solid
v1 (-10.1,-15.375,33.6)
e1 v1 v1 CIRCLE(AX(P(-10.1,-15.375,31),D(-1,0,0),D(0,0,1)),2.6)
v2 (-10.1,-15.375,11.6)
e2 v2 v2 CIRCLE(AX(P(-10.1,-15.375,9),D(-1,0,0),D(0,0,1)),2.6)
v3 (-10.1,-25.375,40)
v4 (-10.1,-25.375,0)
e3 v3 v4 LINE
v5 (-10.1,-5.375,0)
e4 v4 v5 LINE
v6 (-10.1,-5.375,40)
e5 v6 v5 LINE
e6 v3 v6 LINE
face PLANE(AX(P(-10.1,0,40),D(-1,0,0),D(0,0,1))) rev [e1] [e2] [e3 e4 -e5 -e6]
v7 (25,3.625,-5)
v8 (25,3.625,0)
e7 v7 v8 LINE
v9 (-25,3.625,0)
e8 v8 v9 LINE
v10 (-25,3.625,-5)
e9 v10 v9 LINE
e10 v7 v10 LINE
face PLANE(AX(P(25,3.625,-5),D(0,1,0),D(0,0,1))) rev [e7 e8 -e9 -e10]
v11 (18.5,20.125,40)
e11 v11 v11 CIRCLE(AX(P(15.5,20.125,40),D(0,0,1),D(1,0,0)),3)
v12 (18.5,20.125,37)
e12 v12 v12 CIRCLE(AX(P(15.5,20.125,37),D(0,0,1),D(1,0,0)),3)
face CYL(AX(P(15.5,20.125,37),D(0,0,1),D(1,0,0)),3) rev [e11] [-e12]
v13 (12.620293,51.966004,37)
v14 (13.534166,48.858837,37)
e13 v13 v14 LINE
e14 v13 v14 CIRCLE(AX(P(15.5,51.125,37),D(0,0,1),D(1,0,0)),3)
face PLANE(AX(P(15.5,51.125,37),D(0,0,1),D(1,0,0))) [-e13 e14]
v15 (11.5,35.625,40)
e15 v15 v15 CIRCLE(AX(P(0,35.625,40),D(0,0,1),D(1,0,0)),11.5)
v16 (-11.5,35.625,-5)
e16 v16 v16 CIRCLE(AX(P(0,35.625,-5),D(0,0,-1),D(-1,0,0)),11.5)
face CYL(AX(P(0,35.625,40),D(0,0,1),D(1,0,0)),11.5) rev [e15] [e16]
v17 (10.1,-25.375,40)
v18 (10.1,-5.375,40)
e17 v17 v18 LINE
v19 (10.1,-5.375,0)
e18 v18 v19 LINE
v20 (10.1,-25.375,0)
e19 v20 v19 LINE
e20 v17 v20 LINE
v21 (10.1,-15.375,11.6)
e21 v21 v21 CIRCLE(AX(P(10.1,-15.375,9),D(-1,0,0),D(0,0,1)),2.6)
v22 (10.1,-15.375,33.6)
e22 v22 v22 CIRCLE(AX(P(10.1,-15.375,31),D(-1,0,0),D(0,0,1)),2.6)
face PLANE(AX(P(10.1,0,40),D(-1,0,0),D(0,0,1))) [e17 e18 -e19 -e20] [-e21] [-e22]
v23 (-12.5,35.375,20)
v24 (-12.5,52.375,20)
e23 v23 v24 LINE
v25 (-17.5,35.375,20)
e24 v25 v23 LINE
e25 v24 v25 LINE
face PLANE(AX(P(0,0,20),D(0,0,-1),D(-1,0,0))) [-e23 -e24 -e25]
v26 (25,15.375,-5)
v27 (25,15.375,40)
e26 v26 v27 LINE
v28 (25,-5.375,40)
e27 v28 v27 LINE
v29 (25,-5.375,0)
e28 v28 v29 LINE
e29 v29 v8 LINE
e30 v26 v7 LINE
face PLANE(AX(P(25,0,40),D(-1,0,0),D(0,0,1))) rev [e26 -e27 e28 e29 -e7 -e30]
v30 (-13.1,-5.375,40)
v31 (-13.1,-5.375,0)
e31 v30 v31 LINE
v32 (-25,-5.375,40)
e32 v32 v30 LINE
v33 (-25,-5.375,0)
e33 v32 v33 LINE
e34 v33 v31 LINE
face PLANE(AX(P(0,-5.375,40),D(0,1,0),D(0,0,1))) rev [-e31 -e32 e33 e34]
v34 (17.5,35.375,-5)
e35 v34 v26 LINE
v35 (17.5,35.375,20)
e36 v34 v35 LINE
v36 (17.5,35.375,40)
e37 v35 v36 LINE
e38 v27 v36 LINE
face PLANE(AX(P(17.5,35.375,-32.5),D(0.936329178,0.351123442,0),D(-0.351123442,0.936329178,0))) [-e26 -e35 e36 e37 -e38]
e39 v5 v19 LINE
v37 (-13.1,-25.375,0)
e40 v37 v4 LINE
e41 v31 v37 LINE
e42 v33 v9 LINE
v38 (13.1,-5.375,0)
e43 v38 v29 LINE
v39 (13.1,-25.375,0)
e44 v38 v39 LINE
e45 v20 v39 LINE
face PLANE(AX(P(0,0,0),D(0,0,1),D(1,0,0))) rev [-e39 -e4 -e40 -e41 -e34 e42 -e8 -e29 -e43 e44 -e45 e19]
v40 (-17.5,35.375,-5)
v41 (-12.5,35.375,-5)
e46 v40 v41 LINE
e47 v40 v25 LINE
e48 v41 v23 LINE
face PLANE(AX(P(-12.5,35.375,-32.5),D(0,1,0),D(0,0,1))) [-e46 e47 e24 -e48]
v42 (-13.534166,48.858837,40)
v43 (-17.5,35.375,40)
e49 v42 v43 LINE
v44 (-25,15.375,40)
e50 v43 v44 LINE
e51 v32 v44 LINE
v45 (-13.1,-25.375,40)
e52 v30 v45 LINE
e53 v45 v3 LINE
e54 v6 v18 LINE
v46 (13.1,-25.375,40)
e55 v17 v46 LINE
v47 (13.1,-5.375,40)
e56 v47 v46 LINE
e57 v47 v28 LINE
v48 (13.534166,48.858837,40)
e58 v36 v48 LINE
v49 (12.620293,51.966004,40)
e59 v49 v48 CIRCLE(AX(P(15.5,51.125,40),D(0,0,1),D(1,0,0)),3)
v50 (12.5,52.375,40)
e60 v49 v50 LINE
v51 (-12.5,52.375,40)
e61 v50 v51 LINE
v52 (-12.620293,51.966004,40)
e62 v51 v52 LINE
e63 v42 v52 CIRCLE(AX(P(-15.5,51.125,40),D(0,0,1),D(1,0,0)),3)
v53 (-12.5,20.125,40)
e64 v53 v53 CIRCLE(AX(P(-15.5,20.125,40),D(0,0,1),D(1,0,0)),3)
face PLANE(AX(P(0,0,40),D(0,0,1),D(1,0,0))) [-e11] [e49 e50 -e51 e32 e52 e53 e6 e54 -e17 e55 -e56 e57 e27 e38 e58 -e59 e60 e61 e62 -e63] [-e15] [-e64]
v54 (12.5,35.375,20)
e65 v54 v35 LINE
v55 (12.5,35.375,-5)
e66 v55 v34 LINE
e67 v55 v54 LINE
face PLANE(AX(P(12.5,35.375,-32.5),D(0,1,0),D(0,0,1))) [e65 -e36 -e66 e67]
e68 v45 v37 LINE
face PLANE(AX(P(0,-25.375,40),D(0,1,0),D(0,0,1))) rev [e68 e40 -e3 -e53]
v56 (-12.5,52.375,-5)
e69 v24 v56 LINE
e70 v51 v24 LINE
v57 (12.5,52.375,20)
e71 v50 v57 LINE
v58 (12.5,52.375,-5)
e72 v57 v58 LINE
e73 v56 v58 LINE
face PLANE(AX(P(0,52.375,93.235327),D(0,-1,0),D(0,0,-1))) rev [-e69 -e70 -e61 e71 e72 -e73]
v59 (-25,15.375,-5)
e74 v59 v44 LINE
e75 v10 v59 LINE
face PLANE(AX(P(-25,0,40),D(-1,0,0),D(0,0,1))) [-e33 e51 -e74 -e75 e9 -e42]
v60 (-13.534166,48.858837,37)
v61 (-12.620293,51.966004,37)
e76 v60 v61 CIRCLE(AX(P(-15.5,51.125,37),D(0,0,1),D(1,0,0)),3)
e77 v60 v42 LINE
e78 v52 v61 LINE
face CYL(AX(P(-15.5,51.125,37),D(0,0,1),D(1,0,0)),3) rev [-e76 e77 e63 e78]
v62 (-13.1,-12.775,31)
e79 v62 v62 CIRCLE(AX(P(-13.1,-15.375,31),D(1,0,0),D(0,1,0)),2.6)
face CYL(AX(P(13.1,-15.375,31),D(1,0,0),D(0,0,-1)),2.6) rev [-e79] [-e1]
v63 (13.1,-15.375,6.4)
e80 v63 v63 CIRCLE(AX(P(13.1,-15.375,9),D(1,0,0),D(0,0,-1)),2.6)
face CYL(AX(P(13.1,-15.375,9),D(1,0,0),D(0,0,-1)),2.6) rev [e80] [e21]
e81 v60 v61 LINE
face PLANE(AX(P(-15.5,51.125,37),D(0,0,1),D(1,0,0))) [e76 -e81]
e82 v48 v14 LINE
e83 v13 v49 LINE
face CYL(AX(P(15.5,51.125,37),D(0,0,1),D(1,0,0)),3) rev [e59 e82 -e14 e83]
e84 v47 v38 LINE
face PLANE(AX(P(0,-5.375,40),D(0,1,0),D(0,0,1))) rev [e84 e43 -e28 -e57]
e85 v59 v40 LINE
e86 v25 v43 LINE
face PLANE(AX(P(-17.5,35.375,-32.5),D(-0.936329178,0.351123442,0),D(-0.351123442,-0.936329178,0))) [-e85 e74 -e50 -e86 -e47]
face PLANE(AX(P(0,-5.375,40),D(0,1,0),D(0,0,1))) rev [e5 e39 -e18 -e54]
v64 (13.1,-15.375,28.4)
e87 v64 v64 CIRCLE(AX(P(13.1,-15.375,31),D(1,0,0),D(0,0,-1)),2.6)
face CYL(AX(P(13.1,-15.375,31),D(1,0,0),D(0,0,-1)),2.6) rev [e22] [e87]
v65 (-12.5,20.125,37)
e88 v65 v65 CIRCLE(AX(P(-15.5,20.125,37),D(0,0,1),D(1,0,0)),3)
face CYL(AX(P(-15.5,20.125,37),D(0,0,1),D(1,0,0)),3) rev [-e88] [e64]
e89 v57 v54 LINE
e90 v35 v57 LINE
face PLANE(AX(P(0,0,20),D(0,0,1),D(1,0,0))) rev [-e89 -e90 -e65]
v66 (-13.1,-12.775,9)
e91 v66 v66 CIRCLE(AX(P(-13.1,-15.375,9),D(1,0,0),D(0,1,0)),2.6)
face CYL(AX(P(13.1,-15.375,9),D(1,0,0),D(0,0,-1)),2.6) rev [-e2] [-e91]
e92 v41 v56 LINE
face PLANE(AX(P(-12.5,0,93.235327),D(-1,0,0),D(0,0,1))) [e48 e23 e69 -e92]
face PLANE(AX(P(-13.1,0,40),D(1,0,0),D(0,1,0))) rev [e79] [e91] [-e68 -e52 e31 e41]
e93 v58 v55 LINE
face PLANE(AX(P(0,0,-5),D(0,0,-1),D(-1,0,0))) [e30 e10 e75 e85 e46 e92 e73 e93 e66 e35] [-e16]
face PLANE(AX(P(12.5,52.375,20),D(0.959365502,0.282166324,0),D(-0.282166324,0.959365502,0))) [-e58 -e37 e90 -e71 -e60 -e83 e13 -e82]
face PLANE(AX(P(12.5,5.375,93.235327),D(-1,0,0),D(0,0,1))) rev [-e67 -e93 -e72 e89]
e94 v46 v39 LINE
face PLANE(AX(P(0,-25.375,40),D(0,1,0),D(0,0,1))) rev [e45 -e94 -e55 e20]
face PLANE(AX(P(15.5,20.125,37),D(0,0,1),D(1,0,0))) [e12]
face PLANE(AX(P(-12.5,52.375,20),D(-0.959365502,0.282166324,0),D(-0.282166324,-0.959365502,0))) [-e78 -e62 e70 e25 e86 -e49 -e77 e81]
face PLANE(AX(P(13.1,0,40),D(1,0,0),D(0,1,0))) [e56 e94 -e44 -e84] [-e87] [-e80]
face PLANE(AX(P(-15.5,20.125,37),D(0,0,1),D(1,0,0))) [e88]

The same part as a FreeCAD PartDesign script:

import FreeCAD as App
import Part
import Sketcher
from FreeCAD import Vector

doc = App.newDocument("Part")
body = doc.addObject("PartDesign::Body", "Body")

# Sketch on XY plane
sketch1 = body.newObject("Sketcher::SketchObject", "Sketch")
sketch1.AttachmentSupport = (doc.getObject("XY_Plane"), [""])
sketch1.MapMode = "FlatFace"
sketch1.addGeometry([
    Part.LineSegment(Vector(13.1, -25.4, 0), Vector(13.1, -5.4, 0)),  # 0
    Part.LineSegment(Vector(13.1, -5.4, 0), Vector(25, -5.4, 0)),  # 1
    Part.LineSegment(Vector(25, -5.4, 0), Vector(25, 5.4, 0)),  # 2
    Part.LineSegment(Vector(25, 5.4, 0), Vector(-25, 5.4, 0)),  # 3
    Part.LineSegment(Vector(-25, 5.4, 0), Vector(-25, -5.4, 0)),  # 4
    Part.LineSegment(Vector(-25, -5.4, 0), Vector(-13.1, -5.4, 0)),  # 5
    Part.LineSegment(Vector(-13.1, -5.4, 0), Vector(-13.1, -25.4, 0)),  # 6
    Part.LineSegment(Vector(-13.1, -25.4, 0), Vector(-10.1, -25.4, 0)),  # 7
    Part.LineSegment(Vector(-10.1, -25.4, 0), Vector(-10.1, -5.4, 0)),  # 8
    Part.LineSegment(Vector(-10.1, -5.4, 0), Vector(10.1, -5.4, 0)),  # 9
    Part.LineSegment(Vector(10.1, -5.4, 0), Vector(10.1, -25.4, 0)),  # 10
    Part.LineSegment(Vector(10.1, -25.4, 0), Vector(13.1, -25.4, 0)),  # 11
], False)
sketch1.addConstraint([
    Sketcher.Constraint("Coincident", 0, 2, 1, 1),
    Sketcher.Constraint("Coincident", 1, 2, 2, 1),
    Sketcher.Constraint("Coincident", 2, 2, 3, 1),
    Sketcher.Constraint("Coincident", 3, 2, 4, 1),
    Sketcher.Constraint("Coincident", 4, 2, 5, 1),
    Sketcher.Constraint("Coincident", 5, 2, 6, 1),
    Sketcher.Constraint("Coincident", 6, 2, 7, 1),
    Sketcher.Constraint("Coincident", 7, 2, 8, 1),
    Sketcher.Constraint("Coincident", 8, 2, 9, 1),
    Sketcher.Constraint("Coincident", 9, 2, 10, 1),
    Sketcher.Constraint("Coincident", 10, 2, 11, 1),
    Sketcher.Constraint("Coincident", 11, 2, 0, 1),
    Sketcher.Constraint("Vertical", 0),
    Sketcher.Constraint("Horizontal", 1),
    Sketcher.Constraint("Vertical", 2),
    Sketcher.Constraint("Horizontal", 3),
    Sketcher.Constraint("Vertical", 4),
    Sketcher.Constraint("Horizontal", 5),
    Sketcher.Constraint("Vertical", 6),
    Sketcher.Constraint("Horizontal", 7),
    Sketcher.Constraint("Vertical", 8),
    Sketcher.Constraint("Horizontal", 9),
    Sketcher.Constraint("Vertical", 10),
    Sketcher.Constraint("Horizontal", 11),
    Sketcher.Constraint("Symmetric", 1, 2, 3, 2, -1, 1),
    Sketcher.Constraint("Symmetric", 0, 2, 5, 2, -2),
    Sketcher.Constraint("Symmetric", 7, 2, 10, 2, -2),
    Sketcher.Constraint("Horizontal", 5, 2, 8, 2),
    Sketcher.Constraint("DistanceX", 3, 2, 3, 1, 50.0),
    Sketcher.Constraint("DistanceX", 7, 1, 7, 2, 3.0),
    Sketcher.Constraint("DistanceY", 0, 1, 0, 2, 20.0),
    Sketcher.Constraint("DistanceX", 1, 1, 1, 2, 11.9),
    Sketcher.Constraint("DistanceY", 2, 1, 2, 2, 10.75),
])
pad1 = body.newObject("PartDesign::Pad", "Pad")
pad1.Profile = sketch1
pad1.Length = 40

# Sketch on XY plane
sketch2 = body.newObject("Sketcher::SketchObject", "Sketch001")
sketch2.AttachmentSupport = (doc.getObject("XY_Plane"), [""])
sketch2.MapMode = "FlatFace"
sketch2.addGeometry([
    Part.LineSegment(Vector(12, 52, 0), Vector(12, 5, 0)),
    Part.LineSegment(Vector(12, 5, 0), Vector(-12, 5, 0)),
    Part.LineSegment(Vector(-12, 5, 0), Vector(-12, 52, 0)),
    Part.LineSegment(Vector(-12, 52, 0), Vector(12, 52, 0)),
], False)
sketch2.addConstraint([
    Sketcher.Constraint("Coincident", 0, 2, 1, 1),
    Sketcher.Constraint("Coincident", 1, 2, 2, 1),
    Sketcher.Constraint("Coincident", 2, 2, 3, 1),
    Sketcher.Constraint("Coincident", 3, 2, 0, 1),
    Sketcher.Constraint("Vertical", 0),
    Sketcher.Constraint("Horizontal", 1),
    Sketcher.Constraint("Vertical", 2),
    Sketcher.Constraint("Horizontal", 3),
    Sketcher.Constraint("DistanceX", 1, 2, 1, 1, 25.0),
    Sketcher.Constraint("DistanceY", 0, 2, 0, 1, 47.0),
    Sketcher.Constraint("DistanceX", -1, 1, 0, 2, 12.5),
    Sketcher.Constraint("DistanceY", -1, 1, 0, 2, 5.375),
])
pad2 = body.newObject("PartDesign::Pad", "Pad001")
pad2.Profile = sketch2
pad2.Length = 40

# Sketch on XY plane
sketch3 = body.newObject("Sketcher::SketchObject", "Sketch002")
sketch3.AttachmentSupport = (doc.getObject("XY_Plane"), [""])
sketch3.MapMode = "FlatFace"
sketch3.AttachmentOffset = App.Placement(Vector(0, 0, 40), App.Rotation())
sketch3.addGeometry(Part.Circle(Vector(0, 36, 0), Vector(0, 0, 1), 12), False)
sketch3.addConstraint([
    Sketcher.Constraint("PointOnObject", 0, 3, -2),
    Sketcher.Constraint("Diameter", 0, 23.0),
    Sketcher.Constraint("DistanceY", -1, 1, 0, 3, 35.625),
])
doc.recompute()
hole = body.newObject("PartDesign::Hole", "Hole")
hole.Profile = sketch3
hole.ThreadType = "None"
hole.Diameter = 23
hole.DepthType = "ThroughAll"

# Sketch on XY plane
sketch4 = body.newObject("Sketcher::SketchObject", "Sketch003")
sketch4.AttachmentSupport = (doc.getObject("XY_Plane"), [""])
sketch4.MapMode = "FlatFace"
sketch4.AttachmentOffset = App.Placement(Vector(0, 0, 40), App.Rotation())
sketch4.addGeometry([
    Part.LineSegment(Vector(18, 35, 0), Vector(12, 35, 0)),  # 0
    Part.LineSegment(Vector(12, 35, 0), Vector(12, 5, 0)),  # 1
    Part.LineSegment(Vector(12, 5, 0), Vector(25, 5, 0)),  # 2
    Part.LineSegment(Vector(25, 5, 0), Vector(25, 15, 0)),  # 3
    Part.LineSegment(Vector(25, 15, 0), Vector(18, 35, 0)),  # 4
    Part.LineSegment(Vector(-12, 5, 0), Vector(-12, 35, 0)),  # 5
    Part.LineSegment(Vector(-12, 35, 0), Vector(-18, 35, 0)),  # 6
    Part.LineSegment(Vector(-18, 35, 0), Vector(-25, 15, 0)),  # 7
    Part.LineSegment(Vector(-25, 15, 0), Vector(-25, 5, 0)),  # 8
    Part.LineSegment(Vector(-25, 5, 0), Vector(-12, 5, 0)),  # 9
], False)
sketch4.addConstraint([
    Sketcher.Constraint("Coincident", 0, 2, 1, 1),
    Sketcher.Constraint("Coincident", 1, 2, 2, 1),
    Sketcher.Constraint("Coincident", 2, 2, 3, 1),
    Sketcher.Constraint("Coincident", 3, 2, 4, 1),
    Sketcher.Constraint("Coincident", 4, 2, 0, 1),
    Sketcher.Constraint("Coincident", 5, 2, 6, 1),
    Sketcher.Constraint("Coincident", 6, 2, 7, 1),
    Sketcher.Constraint("Coincident", 7, 2, 8, 1),
    Sketcher.Constraint("Coincident", 8, 2, 9, 1),
    Sketcher.Constraint("Coincident", 9, 2, 5, 1),
    Sketcher.Constraint("Horizontal", 0),
    Sketcher.Constraint("Vertical", 1),
    Sketcher.Constraint("Horizontal", 2),
    Sketcher.Constraint("Vertical", 3),
    Sketcher.Constraint("Vertical", 5),
    Sketcher.Constraint("Horizontal", 6),
    Sketcher.Constraint("Vertical", 8),
    Sketcher.Constraint("Horizontal", 9),
    Sketcher.Constraint("Symmetric", 0, 2, 5, 2, -2),
    Sketcher.Constraint("Symmetric", 3, 2, 7, 2, -2),
    Sketcher.Constraint("Horizontal", 2, 2, 8, 2),
    Sketcher.Constraint("Equal", 0, 6),
    Sketcher.Constraint("DistanceX", 0, 2, 0, 1, 5.0),
    Sketcher.Constraint("DistanceY", 1, 2, 1, 1, 30.0),
    Sketcher.Constraint("DistanceY", 3, 1, 3, 2, 10.0),
    Sketcher.Constraint("DistanceX", 2, 1, 2, 2, 12.5),
    Sketcher.Constraint("DistanceX", -1, 1, 2, 2, 25.0),
    Sketcher.Constraint("DistanceY", -1, 1, 0, 2, 35.375),
])
pad3 = body.newObject("PartDesign::Pad", "Pad002")
pad3.Profile = sketch4
pad3.Length = 40
pad3.Reversed = True

# Sketch on XY plane
sketch5 = body.newObject("Sketcher::SketchObject", "Sketch004")
sketch5.AttachmentSupport = (doc.getObject("XY_Plane"), [""])
sketch5.MapMode = "FlatFace"
sketch5.AttachmentOffset = App.Placement(Vector(0, 0, 40), App.Rotation())
sketch5.addGeometry([
    Part.LineSegment(Vector(18, 35, 0), Vector(12, 52, 0)),  # 0
    Part.LineSegment(Vector(12, 52, 0), Vector(12, 35, 0)),  # 1
    Part.LineSegment(Vector(12, 35, 0), Vector(18, 35, 0)),  # 2
    Part.LineSegment(Vector(-12, 52, 0), Vector(-18, 35, 0)),  # 3
    Part.LineSegment(Vector(-18, 35, 0), Vector(-12, 35, 0)),  # 4
    Part.LineSegment(Vector(-12, 35, 0), Vector(-12, 52, 0)),  # 5
], False)
sketch5.addConstraint([
    Sketcher.Constraint("Coincident", 0, 2, 1, 1),
    Sketcher.Constraint("Coincident", 1, 2, 2, 1),
    Sketcher.Constraint("Coincident", 2, 2, 0, 1),
    Sketcher.Constraint("Coincident", 3, 2, 4, 1),
    Sketcher.Constraint("Coincident", 4, 2, 5, 1),
    Sketcher.Constraint("Coincident", 5, 2, 3, 1),
    Sketcher.Constraint("Vertical", 1),
    Sketcher.Constraint("Horizontal", 2),
    Sketcher.Constraint("Horizontal", 4),
    Sketcher.Constraint("Vertical", 5),
    Sketcher.Constraint("Symmetric", 2, 2, 3, 2, -2),
    Sketcher.Constraint("Symmetric", 0, 2, 5, 2, -2),
    Sketcher.Constraint("DistanceX", 2, 1, 2, 2, 5.0),
    Sketcher.Constraint("DistanceY", 1, 2, 1, 1, 17.0),
    Sketcher.Constraint("DistanceX", 3, 2, 1, 2, 30.0),
    Sketcher.Constraint("DistanceY", -1, 1, 0, 2, 52.375),
])
pad4 = body.newObject("PartDesign::Pad", "Pad003")
pad4.Profile = sketch5
pad4.Length = 20
pad4.Reversed = True

# Sketch on YZ plane
sketch6 = body.newObject("Sketcher::SketchObject", "Sketch005")
sketch6.AttachmentSupport = (doc.getObject("YZ_Plane"), [""])
sketch6.MapMode = "FlatFace"
sketch6.AttachmentOffset = App.Placement(Vector(0, 0, 13.1), App.Rotation())
sketch6.addGeometry([
    Part.Circle(Vector(-15.4, 31, 0), Vector(0, 0, 1), 2.6),
    Part.Circle(Vector(-15.4, 9, 0), Vector(0, 0, 1), 2.6),
], False)
sketch6.addConstraint([
    Sketcher.Constraint("Equal", 0, 1),
    Sketcher.Constraint("Vertical", 0, 3, 1, 3),
    Sketcher.Constraint("Diameter", 0, 5.2),
    Sketcher.Constraint("DistanceY", -1, 1, 0, 3, 31.0),
    Sketcher.Constraint("DistanceY", -1, 1, 1, 3, 9.0),
    Sketcher.Constraint("DistanceX", 0, 3, -1, 1, 15.375),
])
doc.recompute()
hole2 = body.newObject("PartDesign::Hole", "Hole001")
hole2.Profile = sketch6
hole2.ThreadType = "None"
hole2.Diameter = 5.2
hole2.DepthType = "ThroughAll"

# Sketch on XY plane
sketch7 = body.newObject("Sketcher::SketchObject", "Sketch006")
sketch7.AttachmentSupport = (doc.getObject("XY_Plane"), [""])
sketch7.MapMode = "FlatFace"
sketch7.AttachmentOffset = App.Placement(Vector(0, 0, 40), App.Rotation())
sketch7.addGeometry([
    Part.Circle(Vector(-15.5, 51.1, 0), Vector(0, 0, 1), 3),
    Part.Circle(Vector(15.5, 51.1, 0), Vector(0, 0, 1), 3),
    Part.Circle(Vector(-15.5, 20.1, 0), Vector(0, 0, 1), 3),
    Part.Circle(Vector(15.5, 20.1, 0), Vector(0, 0, 1), 3),
], False)
sketch7.addConstraint([
    Sketcher.Constraint("Equal", 0, 1),
    Sketcher.Constraint("Equal", 1, 2),
    Sketcher.Constraint("Equal", 2, 3),
    Sketcher.Constraint("Symmetric", 0, 3, 1, 3, -2),
    Sketcher.Constraint("Symmetric", 2, 3, 3, 3, -2),
    Sketcher.Constraint("Vertical", 0, 3, 2, 3),
    Sketcher.Constraint("Diameter", 0, 6.0),
    Sketcher.Constraint("DistanceX", 0, 3, 1, 3, 31.0),
    Sketcher.Constraint("DistanceY", 2, 3, 0, 3, 31.0),
    Sketcher.Constraint("DistanceY", -1, 1, 0, 3, 51.125),
])
pocket1 = body.newObject("PartDesign::Pocket", "Pocket")
pocket1.Profile = sketch7
pocket1.Length = 3

# Sketch on XY plane
sketch8 = body.newObject("Sketcher::SketchObject", "Sketch007")
sketch8.AttachmentSupport = (doc.getObject("XY_Plane"), [""])
sketch8.MapMode = "FlatFace"
sketch8.AttachmentOffset = App.Placement(Vector(0, 0, -5), App.Rotation())
sketch8.addGeometry([
    Part.LineSegment(Vector(25, 4, 0), Vector(-25, 4, 0)),  # 0
    Part.LineSegment(Vector(-25, 4, 0), Vector(-25, 15, 0)),  # 1
    Part.LineSegment(Vector(-25, 15, 0), Vector(-18, 35, 0)),  # 2
    Part.LineSegment(Vector(-18, 35, 0), Vector(-12, 35, 0)),  # 3
    Part.LineSegment(Vector(-12, 35, 0), Vector(-12, 52, 0)),  # 4
    Part.LineSegment(Vector(-12, 52, 0), Vector(12, 52, 0)),  # 5
    Part.LineSegment(Vector(12, 52, 0), Vector(12, 35, 0)),  # 6
    Part.LineSegment(Vector(12, 35, 0), Vector(18, 35, 0)),  # 7
    Part.LineSegment(Vector(18, 35, 0), Vector(25, 15, 0)),  # 8
    Part.LineSegment(Vector(25, 15, 0), Vector(25, 4, 0)),  # 9
    Part.Circle(Vector(0, 36, 0), Vector(0, 0, 1), 12),  # 10
], False)
sketch8.addConstraint([
    Sketcher.Constraint("Coincident", 0, 2, 1, 1),
    Sketcher.Constraint("Coincident", 1, 2, 2, 1),
    Sketcher.Constraint("Coincident", 2, 2, 3, 1),
    Sketcher.Constraint("Coincident", 3, 2, 4, 1),
    Sketcher.Constraint("Coincident", 4, 2, 5, 1),
    Sketcher.Constraint("Coincident", 5, 2, 6, 1),
    Sketcher.Constraint("Coincident", 6, 2, 7, 1),
    Sketcher.Constraint("Coincident", 7, 2, 8, 1),
    Sketcher.Constraint("Coincident", 8, 2, 9, 1),
    Sketcher.Constraint("Coincident", 9, 2, 0, 1),
    Sketcher.Constraint("Horizontal", 0),
    Sketcher.Constraint("Vertical", 1),
    Sketcher.Constraint("Horizontal", 3),
    Sketcher.Constraint("Vertical", 4),
    Sketcher.Constraint("Horizontal", 5),
    Sketcher.Constraint("Vertical", 6),
    Sketcher.Constraint("Horizontal", 7),
    Sketcher.Constraint("Vertical", 9),
    Sketcher.Constraint("Symmetric", 3, 2, 6, 2, -2),
    Sketcher.Constraint("Symmetric", 1, 2, 8, 2, -2),
    Sketcher.Constraint("PointOnObject", 10, 3, -2),
    Sketcher.Constraint("Equal", 3, 7),
    Sketcher.Constraint("Diameter", 10, 23.0),
    Sketcher.Constraint("DistanceX", 0, 2, 0, 1, 50.0),
    Sketcher.Constraint("DistanceX", 3, 1, 3, 2, 5.0),
    Sketcher.Constraint("DistanceX", 5, 1, 5, 2, 25.0),
    Sketcher.Constraint("DistanceY", 4, 1, 4, 2, 17.0),
    Sketcher.Constraint("DistanceY", 0, 2, 10, 3, 32.0),
    Sketcher.Constraint("DistanceY", 1, 2, 2, 2, 20.0),
    Sketcher.Constraint("DistanceY", 1, 1, 1, 2, 11.75),
    Sketcher.Constraint("DistanceY", -1, 1, 10, 3, 35.625),
])
pad5 = body.newObject("PartDesign::Pad", "Pad004")
pad5.Profile = sketch8
pad5.Length = 5

doc.recompute()
